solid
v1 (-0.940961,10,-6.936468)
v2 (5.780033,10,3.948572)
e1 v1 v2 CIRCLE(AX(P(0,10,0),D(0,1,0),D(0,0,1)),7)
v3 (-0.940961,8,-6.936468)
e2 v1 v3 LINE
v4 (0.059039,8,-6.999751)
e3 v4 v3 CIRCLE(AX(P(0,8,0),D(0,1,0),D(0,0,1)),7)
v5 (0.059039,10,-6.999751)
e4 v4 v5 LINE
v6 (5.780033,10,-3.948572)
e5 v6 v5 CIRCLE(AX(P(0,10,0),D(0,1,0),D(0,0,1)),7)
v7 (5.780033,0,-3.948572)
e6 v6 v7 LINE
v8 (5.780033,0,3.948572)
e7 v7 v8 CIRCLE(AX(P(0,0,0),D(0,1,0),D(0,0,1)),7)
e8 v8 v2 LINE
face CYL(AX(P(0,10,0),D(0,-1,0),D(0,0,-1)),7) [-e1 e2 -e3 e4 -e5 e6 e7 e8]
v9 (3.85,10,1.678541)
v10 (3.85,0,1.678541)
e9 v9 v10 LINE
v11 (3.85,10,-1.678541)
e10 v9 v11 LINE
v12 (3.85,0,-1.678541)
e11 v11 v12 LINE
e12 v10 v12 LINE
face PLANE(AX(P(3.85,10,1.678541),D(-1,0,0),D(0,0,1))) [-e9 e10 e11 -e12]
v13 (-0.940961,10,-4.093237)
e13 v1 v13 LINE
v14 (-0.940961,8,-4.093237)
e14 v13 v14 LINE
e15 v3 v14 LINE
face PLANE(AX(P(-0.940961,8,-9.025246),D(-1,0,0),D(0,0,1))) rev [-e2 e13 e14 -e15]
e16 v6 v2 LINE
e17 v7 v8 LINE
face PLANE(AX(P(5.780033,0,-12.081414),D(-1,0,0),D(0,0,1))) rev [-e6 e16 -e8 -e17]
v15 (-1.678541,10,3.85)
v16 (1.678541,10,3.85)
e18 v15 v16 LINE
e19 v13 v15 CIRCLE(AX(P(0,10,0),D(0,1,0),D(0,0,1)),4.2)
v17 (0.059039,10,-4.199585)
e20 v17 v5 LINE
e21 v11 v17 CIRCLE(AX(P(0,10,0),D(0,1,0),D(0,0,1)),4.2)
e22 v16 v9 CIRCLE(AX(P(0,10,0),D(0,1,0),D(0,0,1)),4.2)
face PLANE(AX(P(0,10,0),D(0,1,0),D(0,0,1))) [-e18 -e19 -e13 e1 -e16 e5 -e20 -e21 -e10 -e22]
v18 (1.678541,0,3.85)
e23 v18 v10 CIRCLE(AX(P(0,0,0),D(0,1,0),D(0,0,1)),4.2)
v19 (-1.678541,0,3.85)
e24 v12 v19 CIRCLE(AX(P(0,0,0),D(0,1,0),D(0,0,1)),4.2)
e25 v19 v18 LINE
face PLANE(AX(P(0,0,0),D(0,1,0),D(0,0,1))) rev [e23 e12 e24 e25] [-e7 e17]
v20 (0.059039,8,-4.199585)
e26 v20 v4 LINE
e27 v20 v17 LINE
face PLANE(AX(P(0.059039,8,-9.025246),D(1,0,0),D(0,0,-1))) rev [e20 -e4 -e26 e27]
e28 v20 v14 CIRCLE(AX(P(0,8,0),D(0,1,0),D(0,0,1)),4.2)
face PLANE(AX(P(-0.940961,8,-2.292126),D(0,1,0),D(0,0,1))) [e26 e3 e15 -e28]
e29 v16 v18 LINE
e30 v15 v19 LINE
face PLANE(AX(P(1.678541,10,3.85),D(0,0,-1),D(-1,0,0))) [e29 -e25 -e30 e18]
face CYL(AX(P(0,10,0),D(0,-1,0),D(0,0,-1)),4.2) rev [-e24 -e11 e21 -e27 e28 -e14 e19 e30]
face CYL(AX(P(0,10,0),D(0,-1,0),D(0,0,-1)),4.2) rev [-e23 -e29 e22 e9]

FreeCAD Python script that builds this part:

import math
import FreeCAD as App
import Part
import Sketcher

V = App.Vector

doc = App.newDocument("Part")
body = doc.addObject("PartDesign::Body", "Body")

sketch1 = body.newObject("Sketcher::SketchObject", "Sketch")
sketch1.AttachmentSupport = (doc.getObject("XZ_Plane"), [""])
sketch1.MapMode = "FlatFace"
sketch1.addGeometry(Part.Circle(V(0, 0, 0), V(0, 0, 1), 7), False)
sketch1.addGeometry(Part.LineSegment(V(3.85, -1.678541, 0), V(3.85, 1.678541, 0)), False)
sketch1.addGeometry(Part.ArcOfCircle(Part.Circle(V(0, 0, 0), V(0, 0, 1), 4.2), math.radians(23.556464), math.radians(66.443536)), False)
sketch1.addGeometry(Part.LineSegment(V(1.678541, 3.85, 0), V(-1.678541, 3.85, 0)), False)
sketch1.addGeometry(Part.ArcOfCircle(Part.Circle(V(0, 0, 0), V(0, 0, 1), 4.2), math.radians(113.556464), math.radians(336.443536)), False)
sketch1.addConstraint(Sketcher.Constraint("Coincident", 1, 2, 2, 1))
sketch1.addConstraint(Sketcher.Constraint("Coincident", 2, 2, 3, 1))
sketch1.addConstraint(Sketcher.Constraint("Coincident", 3, 2, 4, 1))
sketch1.addConstraint(Sketcher.Constraint("Coincident", 4, 2, 1, 1))
sketch1.addConstraint(Sketcher.Constraint("Vertical", 1))
sketch1.addConstraint(Sketcher.Constraint("Horizontal", 3))
sketch1.addConstraint(Sketcher.Constraint("Coincident", 0, 3, -1, 1))
sketch1.addConstraint(Sketcher.Constraint("Coincident", 2, 3, -1, 1))
sketch1.addConstraint(Sketcher.Constraint("Coincident", 4, 3, -1, 1))
sketch1.addConstraint(Sketcher.Constraint("Equal", 2, 4))
sketch1.addConstraint(Sketcher.Constraint("Equal", 3, 1))
sketch1.addConstraint(Sketcher.Constraint("Diameter", 0, 14.0))
sketch1.addConstraint(Sketcher.Constraint("Radius", 2, 4.2))
sketch1.addConstraint(Sketcher.Constraint("DistanceX", -1, 1, 1, 2, 3.85))
pad1 = body.newObject("PartDesign::Pad", "Pad")
pad1.Profile = sketch1
pad1.Length = 10
pad1.Reversed = True

sketch2 = body.newObject("Sketcher::SketchObject", "Sketch001")
sketch2.AttachmentSupport = (doc.getObject("XZ_Plane"), [""])
sketch2.MapMode = "FlatFace"
sketch2.addGeometry(Part.Circle(V(12, 0, 0), V(0, 0, 1), 7), False)
sketch2.addGeometry(Part.ArcOfCircle(Part.Circle(V(12, 0, 0), V(0, 0, 1), 4.2), math.radians(111.786789), math.radians(338.213211)), False)
sketch2.addGeometry(Part.LineSegment(V(15.9, -1.558846, 0), V(15.9, 1.558846, 0)), False)
sketch2.addGeometry(Part.ArcOfCircle(Part.Circle(V(12, 0, 0), V(0, 0, 1), 4.2), math.radians(21.786789), math.radians(68.213211)), False)
sketch2.addGeometry(Part.LineSegment(V(13.558846, 3.9, 0), V(10.441154, 3.9, 0)), False)
sketch2.addConstraint(Sketcher.Constraint("Coincident", 1, 2, 2, 1))
sketch2.addConstraint(Sketcher.Constraint("Coincident", 2, 2, 3, 1))
sketch2.addConstraint(Sketcher.Constraint("Coincident", 3, 2, 4, 1))
sketch2.addConstraint(Sketcher.Constraint("Coincident", 4, 2, 1, 1))
sketch2.addConstraint(Sketcher.Constraint("Vertical", 2))
sketch2.addConstraint(Sketcher.Constraint("Horizontal", 4))
sketch2.addConstraint(Sketcher.Constraint("Coincident", 1, 3, 0, 3))
sketch2.addConstraint(Sketcher.Constraint("Coincident", 3, 3, 0, 3))
sketch2.addConstraint(Sketcher.Constraint("Equal", 1, 3))
sketch2.addConstraint(Sketcher.Constraint("PointOnObject", 0, 3, -1))
sketch2.addConstraint(Sketcher.Constraint("Equal", 4, 2))
sketch2.addConstraint(Sketcher.Constraint("Diameter", 0, 14.0))
sketch2.addConstraint(Sketcher.Constraint("Radius", 1, 4.2))
sketch2.addConstraint(Sketcher.Constraint("DistanceX", -1, 1, 0, 3, 12.0))
sketch2.addConstraint(Sketcher.Constraint("DistanceX", -1, 1, 1, 2, 15.9))
pad2 = body.newObject("PartDesign::Pad", "Pad001")
pad2.Profile = sketch2
pad2.Length = 5
pad2.Reversed = True

sketch3 = body.newObject("Sketcher::SketchObject", "Sketch002")
sketch3.AttachmentSupport = (doc.getObject("XZ_Plane"), [""])
sketch3.MapMode = "FlatFace"
sketch3.addGeometry(Part.Circle(V(24, 0, 0), V(0, 0, 1), 7), False)
sketch3.addGeometry(Part.ArcOfCircle(Part.Circle(V(24, 0, 0), V(0, 0, 1), 4.225), math.radians(115.919603), math.radians(334.080397)), False)
sketch3.addGeometry(Part.LineSegment(V(27.8, -1.846788, 0), V(27.8, 1.846788, 0)), False)
sketch3.addGeometry(Part.ArcOfCircle(Part.Circle(V(24, 0, 0), V(0, 0, 1), 4.225), math.radians(25.919602), math.radians(64.080398)), False)
sketch3.addGeometry(Part.LineSegment(V(25.846788, 3.8, 0), V(22.153212, 3.8, 0)), False)
sketch3.addConstraint(Sketcher.Constraint("Coincident", 1, 2, 2, 1))
sketch3.addConstraint(Sketcher.Constraint("Coincident", 2, 2, 3, 1))
sketch3.addConstraint(Sketcher.Constraint("Coincident", 3, 2, 4, 1))
sketch3.addConstraint(Sketcher.Constraint("Coincident", 4, 2, 1, 1))
sketch3.addConstraint(Sketcher.Constraint("Vertical", 2))
sketch3.addConstraint(Sketcher.Constraint("Horizontal", 4))
sketch3.addConstraint(Sketcher.Constraint("Coincident", 1, 3, 0, 3))
sketch3.addConstraint(Sketcher.Constraint("Coincident", 3, 3, 0, 3))
sketch3.addConstraint(Sketcher.Constraint("Equal", 1, 3))
sketch3.addConstraint(Sketcher.Constraint("PointOnObject", 0, 3, -1))
sketch3.addConstraint(Sketcher.Constraint("Equal", 4, 2))
sketch3.addConstraint(Sketcher.Constraint("Diameter", 0, 14.0))
sketch3.addConstraint(Sketcher.Constraint("DistanceX", -1, 1, 0, 3, 24.0))
sketch3.addConstraint(Sketcher.Constraint("Radius", 1, 4.225))
sketch3.addConstraint(Sketcher.Constraint("DistanceX", -1, 1, 1, 2, 27.8))
pad3 = body.newObject("PartDesign::Pad", "Pad002")
pad3.Profile = sketch3
pad3.Length = 5
pad3.Reversed = True

sketch4 = body.newObject("Sketcher::SketchObject", "Sketch003")
sketch4.AttachmentSupport = (doc.getObject("XZ_Plane"), [""])
sketch4.MapMode = "FlatFace"
sketch4.AttachmentOffset = App.Placement(V(0, 0, -10), App.Rotation())
sketch4.addGeometry(Part.LineSegment(V(-0.940961, -9.025246, 0), V(-0.940961, -2.292126, 0)), False)
sketch4.addGeometry(Part.LineSegment(V(-0.940961, -2.292126, 0), V(0.059039, -2.292126, 0)), False)
sketch4.addGeometry(Part.LineSegment(V(0.059039, -2.292126, 0), V(0.059039, -9.025246, 0)), False)
sketch4.addGeometry(Part.LineSegment(V(0.059039, -9.025246, 0), V(-0.940961, -9.025246, 0)), False)
sketch4.addGeometry(Part.LineSegment(V(10.758432, -9.025246, 0), V(10.758432, -1.671342, 0)), False)
sketch4.addGeometry(Part.LineSegment(V(10.758432, -1.671342, 0), V(11.758432, -1.671342, 0)), False)
sketch4.addGeometry(Part.LineSegment(V(11.758432, -1.671342, 0), V(11.758432, -9.025246, 0)), False)
sketch4.addGeometry(Part.LineSegment(V(11.758432, -9.025246, 0), V(10.758432, -9.025246, 0)), False)
sketch4.addGeometry(Part.LineSegment(V(12.9073, -9.025246, 0), V(12.9073, -1.671342, 0)), False)
sketch4.addGeometry(Part.LineSegment(V(12.9073, -1.671342, 0), V(13.9073, -1.671342, 0)), False)
sketch4.addGeometry(Part.LineSegment(V(13.9073, -1.671342, 0), V(13.9073, -9.025246, 0)), False)
sketch4.addGeometry(Part.LineSegment(V(13.9073, -9.025246, 0), V(12.9073, -9.025246, 0)), False)
sketch4.addConstraint(Sketcher.Constraint("Coincident", 0, 2, 1, 1))
sketch4.addConstraint(Sketcher.Constraint("Coincident", 1, 2, 2, 1))
sketch4.addConstraint(Sketcher.Constraint("Coincident", 2, 2, 3, 1))
sketch4.addConstraint(Sketcher.Constraint("Coincident", 3, 2, 0, 1))
sketch4.addConstraint(Sketcher.Constraint("Coincident", 4, 2, 5, 1))
sketch4.addConstraint(Sketcher.Constraint("Coincident", 5, 2, 6, 1))
sketch4.addConstraint(Sketcher.Constraint("Coincident", 6, 2, 7, 1))
sketch4.addConstraint(Sketcher.Constraint("Coincident", 7, 2, 4, 1))
sketch4.addConstraint(Sketcher.Constraint("Coincident", 8, 2, 9, 1))
sketch4.addConstraint(Sketcher.Constraint("Coincident", 9, 2, 10, 1))
sketch4.addConstraint(Sketcher.Constraint("Coincident", 10, 2, 11, 1))
sketch4.addConstraint(Sketcher.Constraint("Coincident", 11, 2, 8, 1))
sketch4.addConstraint(Sketcher.Constraint("Vertical", 0))
sketch4.addConstraint(Sketcher.Constraint("Horizontal", 1))
sketch4.addConstraint(Sketcher.Constraint("Vertical", 2))
sketch4.addConstraint(Sketcher.Constraint("Horizontal", 3))
sketch4.addConstraint(Sketcher.Constraint("Vertical", 4))
sketch4.addConstraint(Sketcher.Constraint("Horizontal", 5))
sketch4.addConstraint(Sketcher.Constraint("Vertical", 6))
sketch4.addConstraint(Sketcher.Constraint("Horizontal", 7))
sketch4.addConstraint(Sketcher.Constraint("Vertical", 8))
sketch4.addConstraint(Sketcher.Constraint("Horizontal", 9))
sketch4.addConstraint(Sketcher.Constraint("Vertical", 10))
sketch4.addConstraint(Sketcher.Constraint("Horizontal", 11))
sketch4.addConstraint(Sketcher.Constraint("Horizontal", 3, 2, 6, 2))
sketch4.addConstraint(Sketcher.Constraint("Horizontal", 5, 2, 8, 2))
sketch4.addConstraint(Sketcher.Constraint("Horizontal", 7, 2, 10, 2))
sketch4.addConstraint(Sketcher.Constraint("Equal", 3, 5))
sketch4.addConstraint(Sketcher.Constraint("Equal", 7, 9))
sketch4.addConstraint(Sketcher.Constraint("DistanceX", 1, 1, 1, 2, 1.0))
sketch4.addConstraint(Sketcher.Constraint("DistanceY", 0, 1, 0, 2, 6.73312))
sketch4.addConstraint(Sketcher.Constraint("DistanceX", -1, 1, 8, 2, 12.9073))
sketch4.addConstraint(Sketcher.Constraint("DistanceY", 4, 1, 4, 2, 7.353904))
sketch4.addConstraint(Sketcher.Constraint("DistanceX", 0, 2, -1, 1, 0.940961))
sketch4.addConstraint(Sketcher.Constraint("DistanceX", -1, 1, 4, 2, 10.758432))
sketch4.addConstraint(Sketcher.Constraint("DistanceY", 4, 2, -1, 1, 1.671342))
pocket1 = body.newObject("PartDesign::Pocket", "Pocket")
pocket1.Profile = sketch4
pocket1.Length = 2
pocket1.Reversed = True

sketch5 = body.newObject("Sketcher::SketchObject", "Sketch004")
sketch5.AttachmentSupport = (doc.getObject("XZ_Plane"), [""])
sketch5.MapMode = "FlatFace"
sketch5.AttachmentOffset = App.Placement(V(0, 0, -10), App.Rotation())
sketch5.addGeometry(Part.LineSegment(V(5.780033, -12.081414, 0), V(5.780033, 10.314567, 0)), False)
sketch5.addGeometry(Part.LineSegment(V(5.780033, 10.314567, 0), V(33.536434, 10.314567, 0)), False)
sketch5.addGeometry(Part.LineSegment(V(33.536434, 10.314567, 0), V(33.536434, -12.081414, 0)), False)
sketch5.addGeometry(Part.LineSegment(V(33.536434, -12.081414, 0), V(5.780033, -12.081414, 0)), False)
sketch5.addConstraint(Sketcher.Constraint("Coincident", 0, 2, 1, 1))
sketch5.addConstraint(Sketcher.Constraint("Coincident", 1, 2, 2, 1))
sketch5.addConstraint(Sketcher.Constraint("Coincident", 2, 2, 3, 1))
sketch5.addConstraint(Sketcher.Constraint("Coincident", 3, 2, 0, 1))
sketch5.addConstraint(Sketcher.Constraint("Vertical", 0))
sketch5.addConstraint(Sketcher.Constraint("Horizontal", 1))
sketch5.addConstraint(Sketcher.Constraint("Vertical", 2))
sketch5.addConstraint(Sketcher.Constraint("Horizontal", 3))
sketch5.addConstraint(Sketcher.Constraint("DistanceX", 1, 1, 1, 2, 27.756401))
sketch5.addConstraint(Sketcher.Constraint("DistanceY", 0, 1, 0, 2, 22.395981))
sketch5.addConstraint(Sketcher.Constraint("DistanceX", -1, 1, 0, 2, 5.780033))
sketch5.addConstraint(Sketcher.Constraint("DistanceY", -1, 1, 0, 2, 10.314567))
pocket2 = body.newObject("PartDesign::Pocket", "Pocket001")
pocket2.Profile = sketch5
pocket2.Length = 10
pocket2.Reversed = True

doc.recompute()
